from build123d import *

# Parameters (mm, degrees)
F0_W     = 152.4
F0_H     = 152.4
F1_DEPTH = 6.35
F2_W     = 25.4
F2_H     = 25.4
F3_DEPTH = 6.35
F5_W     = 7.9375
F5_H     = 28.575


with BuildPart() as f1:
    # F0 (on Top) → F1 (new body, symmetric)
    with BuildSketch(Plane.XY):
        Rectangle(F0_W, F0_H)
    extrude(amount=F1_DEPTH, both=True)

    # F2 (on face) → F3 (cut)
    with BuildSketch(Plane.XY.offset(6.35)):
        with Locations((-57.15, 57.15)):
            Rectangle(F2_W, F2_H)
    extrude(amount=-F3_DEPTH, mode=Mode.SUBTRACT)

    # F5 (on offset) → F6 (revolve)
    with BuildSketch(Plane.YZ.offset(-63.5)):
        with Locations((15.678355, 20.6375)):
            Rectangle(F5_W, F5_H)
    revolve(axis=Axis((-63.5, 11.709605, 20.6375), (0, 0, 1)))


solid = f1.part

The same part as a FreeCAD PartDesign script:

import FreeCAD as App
import Part
import Sketcher
from FreeCAD import Vector
Q = App.Units.Quantity

doc = App.newDocument("Part")
params = doc.addObject("Spreadsheet::Sheet", "Params")
for row, (alias, value) in enumerate([
    ("sketch1_width", "6 in"),
    ("pad1_length", "0.5 in"),
    ("sketch2_width", "1 in"),
    ("pocket1_length", "0.25 in"),
    ("sketch3_width", "0.3125 in"),
    ("sketch3_height", "1.125 in"),
    ("revolution_angle", "360 deg"),
], start=1):
    params.set(f"A{row}", alias)
    params.set(f"B{row}", "=" + value)
    params.setAlias(f"B{row}", alias)

body = doc.addObject("PartDesign::Body", "Body")

# Sketch on XY plane
sketch1 = body.newObject("Sketcher::SketchObject", "Sketch")
sketch1.AttachmentSupport = (doc.getObject("XY_Plane"), [""])
sketch1.MapMode = "FlatFace"
sketch1.addGeometry([
    Part.LineSegment(Vector(-76, 76, 0), Vector(-76, -76, 0)),
    Part.LineSegment(Vector(-76, -76, 0), Vector(76, -76, 0)),
    Part.LineSegment(Vector(76, -76, 0), Vector(76, 76, 0)),
    Part.LineSegment(Vector(76, 76, 0), Vector(-76, 76, 0)),
], False)
sketch1.addConstraint([
    Sketcher.Constraint("Coincident", 0, 2, 1, 1),
    Sketcher.Constraint("Coincident", 1, 2, 2, 1),
    Sketcher.Constraint("Coincident", 2, 2, 3, 1),
    Sketcher.Constraint("Coincident", 3, 2, 0, 1),
    Sketcher.Constraint("Vertical", 0),
    Sketcher.Constraint("Horizontal", 1),
    Sketcher.Constraint("Vertical", 2),
    Sketcher.Constraint("Horizontal", 3),
    Sketcher.Constraint("Symmetric", 0, 2, 2, 2, -1, 1),
    Sketcher.Constraint("Equal", 3, 0),
    Sketcher.Constraint("DistanceX", 1, 1, 1, 2, Q("6 in")),
])
sketch1.setExpression("Constraints[10]", "Params.sketch1_width")
pad1 = body.newObject("PartDesign::Pad", "Pad")
pad1.Profile = sketch1
pad1.setExpression("Length", "Params.pad1_length")
pad1.Midplane = True

# Sketch on XY plane
sketch2 = body.newObject("Sketcher::SketchObject", "Sketch001")
sketch2.AttachmentSupport = (doc.getObject("XY_Plane"), [""])
sketch2.MapMode = "FlatFace"
sketch2.AttachmentOffset = App.Placement(Vector(0, 0, 0.25 * 25.4), App.Rotation())
sketch2.addGeometry([
    Part.LineSegment(Vector(-70, 70, 0), Vector(-70, 44, 0)),
    Part.LineSegment(Vector(-70, 44, 0), Vector(-44, 44, 0)),
    Part.LineSegment(Vector(-44, 44, 0), Vector(-44, 70, 0)),
    Part.LineSegment(Vector(-44, 70, 0), Vector(-70, 70, 0)),
], False)
sketch2.addConstraint([
    Sketcher.Constraint("Coincident", 0, 2, 1, 1),
    Sketcher.Constraint("Coincident", 1, 2, 2, 1),
    Sketcher.Constraint("Coincident", 2, 2, 3, 1),
    Sketcher.Constraint("Coincident", 3, 2, 0, 1),
    Sketcher.Constraint("Vertical", 0),
    Sketcher.Constraint("Horizontal", 1),
    Sketcher.Constraint("Vertical", 2),
    Sketcher.Constraint("Horizontal", 3),
    Sketcher.Constraint("Equal", 3, 0),
    Sketcher.Constraint("DistanceX", 1, 1, 1, 2, Q("1 in")),
    Sketcher.Constraint("DistanceX", 0, 2, -1, 1, Q("2.75 in")),
    Sketcher.Constraint("DistanceY", -1, 1, 0, 2, Q("1.75 in")),
])
sketch2.setExpression("Constraints[9]", "Params.sketch2_width")
pocket1 = body.newObject("PartDesign::Pocket", "Pocket")
pocket1.Profile = sketch2
pocket1.setExpression("Length", "Params.pocket1_length")

# Sketch on YZ plane
sketch3 = body.newObject("Sketcher::SketchObject", "Sketch002")
sketch3.AttachmentSupport = (doc.getObject("YZ_Plane"), [""])
sketch3.MapMode = "FlatFace"
sketch3.AttachmentOffset = App.Placement(Vector(0, 0, -2.5 * 25.4), App.Rotation())
sketch3.addGeometry([
    Part.LineSegment(Vector(12, 35, 0), Vector(12, 6, 0)),
    Part.LineSegment(Vector(12, 6, 0), Vector(20, 6, 0)),
    Part.LineSegment(Vector(20, 6, 0), Vector(20, 35, 0)),
    Part.LineSegment(Vector(20, 35, 0), Vector(12, 35, 0)),
], False)
sketch3.addGeometry(Part.LineSegment(Vector(12, 6, 0), Vector(12, 35, 0)), True)  # axis
sketch3.addConstraint([
    Sketcher.Constraint("Coincident", 0, 2, 1, 1),
    Sketcher.Constraint("Coincident", 1, 2, 2, 1),
    Sketcher.Constraint("Coincident", 2, 2, 3, 1),
    Sketcher.Constraint("Coincident", 3, 2, 0, 1),
    Sketcher.Constraint("Vertical", 0),
    Sketcher.Constraint("Horizontal", 1),
    Sketcher.Constraint("Vertical", 2),
    Sketcher.Constraint("Horizontal", 3),
    Sketcher.Constraint("Vertical", 4),
    Sketcher.Constraint("Coincident", 4, 1, 0, 2),
    Sketcher.Constraint("Horizontal", 2, 2, 4, 2),
    Sketcher.Constraint("DistanceX", 1, 1, 1, 2, Q("0.3125 in")),
    Sketcher.Constraint("DistanceY", 0, 2, 0, 1, Q("1.125 in")),
    Sketcher.Constraint("DistanceY", -1, 1, 0, 2, Q("0.25 in")),
    Sketcher.Constraint("DistanceX", -1, 1, 0, 2, Q("11.709605 mm")),
])
sketch3.setExpression("Constraints[11]", "Params.sketch3_width")
sketch3.setExpression("Constraints[12]", "Params.sketch3_height")
revolution = body.newObject("PartDesign::Revolution", "Revolution")
revolution.Profile = sketch3
revolution.ReferenceAxis = (sketch3, ["Axis0"])
revolution.setExpression("Angle", "Params.revolution_angle")

doc.recompute()
